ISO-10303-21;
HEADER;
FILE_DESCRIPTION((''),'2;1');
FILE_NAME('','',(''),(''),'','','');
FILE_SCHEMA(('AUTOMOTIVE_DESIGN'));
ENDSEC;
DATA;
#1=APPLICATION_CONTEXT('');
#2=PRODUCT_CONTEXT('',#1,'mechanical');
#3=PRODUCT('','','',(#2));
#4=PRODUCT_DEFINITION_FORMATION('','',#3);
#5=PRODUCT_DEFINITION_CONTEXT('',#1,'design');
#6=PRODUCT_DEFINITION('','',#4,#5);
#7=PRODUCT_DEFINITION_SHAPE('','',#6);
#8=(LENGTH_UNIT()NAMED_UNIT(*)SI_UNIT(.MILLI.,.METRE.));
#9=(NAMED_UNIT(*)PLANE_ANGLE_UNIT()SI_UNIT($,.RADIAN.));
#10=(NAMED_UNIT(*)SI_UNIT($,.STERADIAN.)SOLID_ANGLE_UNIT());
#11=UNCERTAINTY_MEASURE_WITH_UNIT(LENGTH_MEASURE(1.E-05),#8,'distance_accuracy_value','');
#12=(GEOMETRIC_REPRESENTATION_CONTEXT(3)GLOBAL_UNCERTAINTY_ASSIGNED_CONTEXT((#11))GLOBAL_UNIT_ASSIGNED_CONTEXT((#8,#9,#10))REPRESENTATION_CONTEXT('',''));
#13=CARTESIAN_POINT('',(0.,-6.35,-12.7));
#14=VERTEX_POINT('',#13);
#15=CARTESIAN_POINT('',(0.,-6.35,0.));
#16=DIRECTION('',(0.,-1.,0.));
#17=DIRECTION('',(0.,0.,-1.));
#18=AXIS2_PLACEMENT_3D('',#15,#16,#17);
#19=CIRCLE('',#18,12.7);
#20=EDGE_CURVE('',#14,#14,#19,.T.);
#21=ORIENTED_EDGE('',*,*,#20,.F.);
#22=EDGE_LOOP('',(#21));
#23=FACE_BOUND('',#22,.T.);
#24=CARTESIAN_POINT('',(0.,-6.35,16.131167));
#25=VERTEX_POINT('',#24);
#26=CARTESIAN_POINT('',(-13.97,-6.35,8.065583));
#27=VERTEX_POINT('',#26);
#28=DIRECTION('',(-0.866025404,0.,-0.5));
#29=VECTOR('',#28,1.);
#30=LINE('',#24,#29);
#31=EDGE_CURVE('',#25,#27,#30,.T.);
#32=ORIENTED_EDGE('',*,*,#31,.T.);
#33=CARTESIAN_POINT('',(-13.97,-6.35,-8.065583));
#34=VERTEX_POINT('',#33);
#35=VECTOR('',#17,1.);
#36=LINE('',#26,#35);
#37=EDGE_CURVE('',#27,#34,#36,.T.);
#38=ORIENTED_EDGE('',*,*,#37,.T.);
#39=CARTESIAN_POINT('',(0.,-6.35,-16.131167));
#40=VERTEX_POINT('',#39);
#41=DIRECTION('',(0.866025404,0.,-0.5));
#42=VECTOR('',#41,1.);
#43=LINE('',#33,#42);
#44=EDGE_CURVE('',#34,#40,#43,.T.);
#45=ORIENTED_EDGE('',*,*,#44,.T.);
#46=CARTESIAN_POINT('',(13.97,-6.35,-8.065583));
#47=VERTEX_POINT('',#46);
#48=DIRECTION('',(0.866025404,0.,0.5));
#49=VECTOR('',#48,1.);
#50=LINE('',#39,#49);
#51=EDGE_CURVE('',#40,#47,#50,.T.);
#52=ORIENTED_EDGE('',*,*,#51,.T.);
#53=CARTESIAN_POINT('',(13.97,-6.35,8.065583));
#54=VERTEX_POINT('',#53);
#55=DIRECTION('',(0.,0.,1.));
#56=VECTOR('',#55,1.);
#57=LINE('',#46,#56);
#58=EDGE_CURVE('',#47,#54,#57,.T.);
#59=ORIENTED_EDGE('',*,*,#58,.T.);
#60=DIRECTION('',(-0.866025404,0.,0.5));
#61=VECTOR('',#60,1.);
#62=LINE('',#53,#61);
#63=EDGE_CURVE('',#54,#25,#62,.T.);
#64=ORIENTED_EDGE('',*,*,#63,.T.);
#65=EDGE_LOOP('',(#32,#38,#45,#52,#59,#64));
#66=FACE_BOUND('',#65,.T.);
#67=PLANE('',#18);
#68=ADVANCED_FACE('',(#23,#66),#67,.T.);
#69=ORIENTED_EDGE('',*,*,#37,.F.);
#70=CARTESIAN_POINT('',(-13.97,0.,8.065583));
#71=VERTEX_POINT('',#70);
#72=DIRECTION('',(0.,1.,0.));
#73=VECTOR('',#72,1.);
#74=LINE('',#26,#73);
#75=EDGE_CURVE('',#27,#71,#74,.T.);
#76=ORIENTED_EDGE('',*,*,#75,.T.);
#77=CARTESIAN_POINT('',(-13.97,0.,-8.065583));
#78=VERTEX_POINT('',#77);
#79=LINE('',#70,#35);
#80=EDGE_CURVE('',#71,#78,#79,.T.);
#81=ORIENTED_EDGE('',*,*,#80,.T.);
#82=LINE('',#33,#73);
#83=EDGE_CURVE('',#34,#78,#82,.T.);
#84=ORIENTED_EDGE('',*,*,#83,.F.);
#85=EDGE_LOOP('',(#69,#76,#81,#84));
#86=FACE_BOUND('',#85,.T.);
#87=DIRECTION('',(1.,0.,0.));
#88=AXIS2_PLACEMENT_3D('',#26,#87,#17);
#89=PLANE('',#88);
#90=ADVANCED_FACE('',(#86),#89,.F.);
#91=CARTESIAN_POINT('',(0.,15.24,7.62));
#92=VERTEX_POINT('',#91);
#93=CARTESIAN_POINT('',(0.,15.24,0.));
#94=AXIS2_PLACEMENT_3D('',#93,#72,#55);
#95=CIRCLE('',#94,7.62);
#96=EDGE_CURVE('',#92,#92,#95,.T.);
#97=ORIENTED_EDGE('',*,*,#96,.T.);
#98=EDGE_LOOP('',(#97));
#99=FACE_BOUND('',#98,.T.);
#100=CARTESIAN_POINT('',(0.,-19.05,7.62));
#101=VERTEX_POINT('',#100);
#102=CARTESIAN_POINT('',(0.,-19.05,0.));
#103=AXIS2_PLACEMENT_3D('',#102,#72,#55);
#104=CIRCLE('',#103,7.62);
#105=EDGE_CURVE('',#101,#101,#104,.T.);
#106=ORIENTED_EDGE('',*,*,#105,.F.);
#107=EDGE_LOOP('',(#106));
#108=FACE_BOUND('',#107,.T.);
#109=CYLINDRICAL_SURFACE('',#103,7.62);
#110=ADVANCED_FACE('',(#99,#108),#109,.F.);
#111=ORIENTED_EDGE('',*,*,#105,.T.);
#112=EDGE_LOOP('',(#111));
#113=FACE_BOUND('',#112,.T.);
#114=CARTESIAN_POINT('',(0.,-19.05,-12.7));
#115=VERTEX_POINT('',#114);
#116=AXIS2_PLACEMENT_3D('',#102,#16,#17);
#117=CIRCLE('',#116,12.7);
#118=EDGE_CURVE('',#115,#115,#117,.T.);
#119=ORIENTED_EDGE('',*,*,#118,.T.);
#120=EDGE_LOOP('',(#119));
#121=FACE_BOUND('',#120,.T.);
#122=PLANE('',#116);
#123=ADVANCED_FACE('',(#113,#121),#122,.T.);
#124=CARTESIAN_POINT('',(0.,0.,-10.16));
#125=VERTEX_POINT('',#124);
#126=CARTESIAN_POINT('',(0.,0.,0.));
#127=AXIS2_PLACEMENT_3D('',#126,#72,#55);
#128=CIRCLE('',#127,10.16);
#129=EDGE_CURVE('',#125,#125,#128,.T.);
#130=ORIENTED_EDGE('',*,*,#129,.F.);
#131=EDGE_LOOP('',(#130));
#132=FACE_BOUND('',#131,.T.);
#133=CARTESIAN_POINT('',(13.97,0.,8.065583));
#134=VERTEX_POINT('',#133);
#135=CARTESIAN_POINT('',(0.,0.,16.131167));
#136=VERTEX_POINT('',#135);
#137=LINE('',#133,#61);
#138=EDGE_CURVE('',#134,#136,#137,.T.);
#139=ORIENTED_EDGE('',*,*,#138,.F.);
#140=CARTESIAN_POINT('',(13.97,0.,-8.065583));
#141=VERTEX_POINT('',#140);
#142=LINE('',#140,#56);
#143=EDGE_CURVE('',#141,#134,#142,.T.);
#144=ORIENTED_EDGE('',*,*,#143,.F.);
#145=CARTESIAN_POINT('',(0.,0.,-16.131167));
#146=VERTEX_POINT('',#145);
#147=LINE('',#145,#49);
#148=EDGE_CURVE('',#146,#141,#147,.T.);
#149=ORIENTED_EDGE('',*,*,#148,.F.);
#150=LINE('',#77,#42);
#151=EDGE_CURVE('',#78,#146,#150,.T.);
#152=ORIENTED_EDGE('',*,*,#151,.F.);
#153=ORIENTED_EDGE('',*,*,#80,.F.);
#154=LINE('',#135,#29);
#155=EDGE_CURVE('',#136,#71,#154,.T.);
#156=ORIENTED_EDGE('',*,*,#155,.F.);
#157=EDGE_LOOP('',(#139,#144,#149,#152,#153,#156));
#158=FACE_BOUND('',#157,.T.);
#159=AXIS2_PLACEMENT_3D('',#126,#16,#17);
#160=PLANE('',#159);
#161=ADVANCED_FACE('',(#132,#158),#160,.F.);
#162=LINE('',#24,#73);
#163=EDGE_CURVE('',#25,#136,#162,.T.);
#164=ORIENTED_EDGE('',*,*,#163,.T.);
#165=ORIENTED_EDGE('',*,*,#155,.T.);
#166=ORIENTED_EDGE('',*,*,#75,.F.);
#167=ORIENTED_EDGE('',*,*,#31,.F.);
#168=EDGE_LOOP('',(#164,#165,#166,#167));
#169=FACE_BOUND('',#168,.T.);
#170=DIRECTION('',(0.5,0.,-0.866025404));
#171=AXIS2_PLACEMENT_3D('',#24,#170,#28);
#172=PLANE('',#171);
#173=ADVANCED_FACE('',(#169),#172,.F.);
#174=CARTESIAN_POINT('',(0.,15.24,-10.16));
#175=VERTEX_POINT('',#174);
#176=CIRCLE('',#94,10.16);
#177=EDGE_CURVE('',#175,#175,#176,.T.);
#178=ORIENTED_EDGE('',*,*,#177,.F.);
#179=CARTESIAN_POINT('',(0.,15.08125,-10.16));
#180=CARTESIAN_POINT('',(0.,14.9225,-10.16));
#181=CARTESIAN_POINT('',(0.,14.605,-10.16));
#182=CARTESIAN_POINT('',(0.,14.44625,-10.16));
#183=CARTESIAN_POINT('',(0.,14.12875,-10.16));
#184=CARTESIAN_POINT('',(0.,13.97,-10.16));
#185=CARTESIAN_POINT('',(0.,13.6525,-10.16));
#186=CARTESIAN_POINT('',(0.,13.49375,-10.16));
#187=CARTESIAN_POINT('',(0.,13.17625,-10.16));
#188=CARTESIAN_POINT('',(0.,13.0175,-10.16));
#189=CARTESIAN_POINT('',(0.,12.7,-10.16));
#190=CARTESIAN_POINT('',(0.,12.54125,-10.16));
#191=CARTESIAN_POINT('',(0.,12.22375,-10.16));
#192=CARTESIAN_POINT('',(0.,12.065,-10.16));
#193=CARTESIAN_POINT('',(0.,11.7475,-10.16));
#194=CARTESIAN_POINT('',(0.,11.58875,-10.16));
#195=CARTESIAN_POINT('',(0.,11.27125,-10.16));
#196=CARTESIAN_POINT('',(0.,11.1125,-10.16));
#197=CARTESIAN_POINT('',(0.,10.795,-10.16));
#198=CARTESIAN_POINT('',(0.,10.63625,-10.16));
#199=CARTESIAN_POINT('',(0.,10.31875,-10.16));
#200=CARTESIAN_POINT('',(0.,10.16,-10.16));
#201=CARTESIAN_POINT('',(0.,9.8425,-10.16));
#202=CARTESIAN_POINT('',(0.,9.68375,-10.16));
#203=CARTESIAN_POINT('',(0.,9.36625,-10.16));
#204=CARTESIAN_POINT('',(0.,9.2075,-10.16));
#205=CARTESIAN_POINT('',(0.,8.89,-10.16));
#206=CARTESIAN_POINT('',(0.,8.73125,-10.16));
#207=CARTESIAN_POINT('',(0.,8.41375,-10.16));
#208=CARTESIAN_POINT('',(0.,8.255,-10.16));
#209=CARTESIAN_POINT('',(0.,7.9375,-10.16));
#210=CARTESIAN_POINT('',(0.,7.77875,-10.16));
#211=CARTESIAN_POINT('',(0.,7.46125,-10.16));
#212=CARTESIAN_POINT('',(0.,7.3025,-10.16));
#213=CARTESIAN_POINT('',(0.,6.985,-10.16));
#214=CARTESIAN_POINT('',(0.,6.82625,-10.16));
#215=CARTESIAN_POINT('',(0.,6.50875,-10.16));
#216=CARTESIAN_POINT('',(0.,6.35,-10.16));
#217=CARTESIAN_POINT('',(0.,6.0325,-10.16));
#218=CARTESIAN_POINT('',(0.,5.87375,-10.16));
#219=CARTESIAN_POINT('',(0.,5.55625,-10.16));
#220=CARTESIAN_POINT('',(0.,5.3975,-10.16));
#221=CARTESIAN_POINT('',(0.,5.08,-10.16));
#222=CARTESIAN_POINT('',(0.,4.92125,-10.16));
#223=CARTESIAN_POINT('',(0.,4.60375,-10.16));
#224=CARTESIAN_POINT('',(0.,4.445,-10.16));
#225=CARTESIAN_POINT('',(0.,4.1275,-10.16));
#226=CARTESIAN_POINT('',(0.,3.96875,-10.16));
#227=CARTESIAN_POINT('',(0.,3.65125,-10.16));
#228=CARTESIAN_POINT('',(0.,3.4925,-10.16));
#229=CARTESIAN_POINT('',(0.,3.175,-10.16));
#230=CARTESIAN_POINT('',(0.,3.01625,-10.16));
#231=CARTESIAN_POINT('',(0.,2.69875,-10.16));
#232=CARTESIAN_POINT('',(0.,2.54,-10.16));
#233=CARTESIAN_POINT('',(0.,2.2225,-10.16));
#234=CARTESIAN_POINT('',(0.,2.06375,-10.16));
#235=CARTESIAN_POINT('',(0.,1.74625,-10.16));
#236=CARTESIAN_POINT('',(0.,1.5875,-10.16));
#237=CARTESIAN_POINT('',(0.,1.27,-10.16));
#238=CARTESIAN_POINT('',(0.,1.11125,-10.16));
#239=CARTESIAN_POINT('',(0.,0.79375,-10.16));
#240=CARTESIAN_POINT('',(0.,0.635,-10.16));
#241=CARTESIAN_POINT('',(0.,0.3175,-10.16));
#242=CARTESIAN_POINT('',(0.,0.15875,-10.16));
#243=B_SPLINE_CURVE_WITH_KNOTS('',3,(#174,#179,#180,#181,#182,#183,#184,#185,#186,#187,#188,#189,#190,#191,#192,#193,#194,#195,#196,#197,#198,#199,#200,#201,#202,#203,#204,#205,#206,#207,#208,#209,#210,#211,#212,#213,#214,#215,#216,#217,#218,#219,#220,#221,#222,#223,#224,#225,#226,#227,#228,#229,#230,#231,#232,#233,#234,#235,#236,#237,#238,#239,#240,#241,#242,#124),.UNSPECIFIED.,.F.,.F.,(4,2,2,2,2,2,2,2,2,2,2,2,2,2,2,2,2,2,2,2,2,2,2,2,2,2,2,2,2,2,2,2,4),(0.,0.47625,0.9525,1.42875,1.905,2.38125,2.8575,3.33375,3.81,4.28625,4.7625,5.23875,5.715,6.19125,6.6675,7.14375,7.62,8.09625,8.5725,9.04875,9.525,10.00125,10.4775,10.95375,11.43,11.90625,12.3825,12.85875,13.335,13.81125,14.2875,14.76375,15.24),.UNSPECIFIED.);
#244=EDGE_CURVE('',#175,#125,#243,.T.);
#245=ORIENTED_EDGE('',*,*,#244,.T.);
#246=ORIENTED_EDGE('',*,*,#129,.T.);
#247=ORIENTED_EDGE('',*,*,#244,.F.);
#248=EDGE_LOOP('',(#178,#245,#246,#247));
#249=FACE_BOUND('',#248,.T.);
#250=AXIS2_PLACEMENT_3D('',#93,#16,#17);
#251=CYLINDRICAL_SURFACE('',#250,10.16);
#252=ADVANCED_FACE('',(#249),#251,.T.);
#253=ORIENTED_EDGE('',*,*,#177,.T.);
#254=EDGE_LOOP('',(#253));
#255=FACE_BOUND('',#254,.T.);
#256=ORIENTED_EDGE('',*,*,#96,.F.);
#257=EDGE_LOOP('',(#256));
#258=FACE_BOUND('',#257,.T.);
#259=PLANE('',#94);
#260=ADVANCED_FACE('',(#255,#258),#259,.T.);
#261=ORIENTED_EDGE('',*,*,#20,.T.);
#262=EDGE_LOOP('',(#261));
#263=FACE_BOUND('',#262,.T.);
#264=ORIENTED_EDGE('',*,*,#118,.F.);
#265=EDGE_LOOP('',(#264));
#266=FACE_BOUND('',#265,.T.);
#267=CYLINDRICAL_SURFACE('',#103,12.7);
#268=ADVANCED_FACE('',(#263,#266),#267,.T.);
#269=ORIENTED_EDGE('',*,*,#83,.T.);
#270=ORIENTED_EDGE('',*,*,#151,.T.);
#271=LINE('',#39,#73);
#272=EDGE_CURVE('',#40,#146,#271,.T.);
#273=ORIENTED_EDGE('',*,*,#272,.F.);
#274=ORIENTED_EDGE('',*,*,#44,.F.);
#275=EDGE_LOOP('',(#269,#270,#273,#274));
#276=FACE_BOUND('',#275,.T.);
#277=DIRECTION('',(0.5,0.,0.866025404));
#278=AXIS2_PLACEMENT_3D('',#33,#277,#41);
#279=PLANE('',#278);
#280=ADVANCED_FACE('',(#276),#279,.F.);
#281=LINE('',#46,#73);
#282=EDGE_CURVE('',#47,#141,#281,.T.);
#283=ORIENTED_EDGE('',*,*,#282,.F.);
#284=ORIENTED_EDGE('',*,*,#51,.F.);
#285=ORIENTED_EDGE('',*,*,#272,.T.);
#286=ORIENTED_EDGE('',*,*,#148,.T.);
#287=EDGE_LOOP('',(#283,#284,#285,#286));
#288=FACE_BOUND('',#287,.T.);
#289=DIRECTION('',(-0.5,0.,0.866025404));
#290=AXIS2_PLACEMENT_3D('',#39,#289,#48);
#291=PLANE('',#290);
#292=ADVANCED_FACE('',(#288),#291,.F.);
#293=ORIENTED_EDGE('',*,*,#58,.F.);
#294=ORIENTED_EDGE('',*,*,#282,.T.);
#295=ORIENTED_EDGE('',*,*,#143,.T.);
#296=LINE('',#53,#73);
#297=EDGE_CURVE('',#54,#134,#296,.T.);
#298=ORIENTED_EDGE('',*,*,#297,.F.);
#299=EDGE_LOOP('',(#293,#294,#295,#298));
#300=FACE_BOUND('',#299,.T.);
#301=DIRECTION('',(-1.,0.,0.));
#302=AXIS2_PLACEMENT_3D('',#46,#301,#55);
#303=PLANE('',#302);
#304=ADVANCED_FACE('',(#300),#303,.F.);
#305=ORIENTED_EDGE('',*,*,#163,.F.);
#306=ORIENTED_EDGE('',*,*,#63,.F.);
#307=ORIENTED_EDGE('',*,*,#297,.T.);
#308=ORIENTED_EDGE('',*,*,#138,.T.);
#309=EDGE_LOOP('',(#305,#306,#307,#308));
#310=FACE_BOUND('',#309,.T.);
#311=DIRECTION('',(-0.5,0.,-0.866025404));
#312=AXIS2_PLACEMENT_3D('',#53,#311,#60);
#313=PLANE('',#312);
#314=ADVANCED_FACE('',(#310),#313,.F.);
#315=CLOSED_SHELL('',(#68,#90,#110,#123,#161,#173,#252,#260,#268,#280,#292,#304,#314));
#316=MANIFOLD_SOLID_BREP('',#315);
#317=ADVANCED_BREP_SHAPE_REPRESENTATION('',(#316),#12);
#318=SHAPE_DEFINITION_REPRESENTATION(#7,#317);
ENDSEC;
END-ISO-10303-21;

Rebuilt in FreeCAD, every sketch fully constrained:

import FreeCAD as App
import Part
import Sketcher
from FreeCAD import Vector
Q = App.Units.Quantity


def add_polygon(sketch, points):
    """Adds a closed chain of lines whose ends are joined by coincident constraints."""
    first, n = sketch.GeometryCount, len(points)
    for a, b in zip(points, points[1:] + points[:1]):
        sketch.addGeometry(Part.LineSegment(App.Vector(*a, 0), App.Vector(*b, 0)), False)
    for i in range(n):
        sketch.addConstraint(Sketcher.Constraint("Coincident", first + i, 2, first + (i + 1) % n, 1))

doc = App.newDocument("Part")
params = doc.addObject("Spreadsheet::Sheet", "Params")
for row, (alias, value) in enumerate([
    ("sketch1_diameter", "0.8 in"),
    ("pad1_length", "0.6 in"),
    ("pad2_length", "0.25 in"),
    ("sketch3_diameter", "1 in"),
    ("pad3_length", "0.5 in"),
    ("sketch4_diameter", "0.6 in"),
], start=1):
    params.set(f"A{row}", alias)
    params.set(f"B{row}", "=" + value)
    params.setAlias(f"B{row}", alias)

body = doc.addObject("PartDesign::Body", "Body")

sketch1 = doc.addObject("Sketcher::SketchObject", "Sketch")
body.addObject(sketch1)
sketch1.AttachmentSupport = (doc.XZ_Plane, [""])
sketch1.MapMode = "FlatFace"
sketch1.addGeometry(Part.Circle(Vector(0, 0, 0), Vector(0, 0, 1), 10), False)
sketch1.addConstraint(Sketcher.Constraint("Coincident", 0, 3, -1, 1))
sketch1.addConstraint(Sketcher.Constraint("Diameter", 0, Q("0.8 in")))
sketch1.setExpression("Constraints[1]", "Params.sketch1_diameter")
pad1 = doc.addObject("PartDesign::Pad", "Pad")
body.addObject(pad1)
pad1.Profile = sketch1
pad1.setExpression("Length", "Params.pad1_length")
pad1.Reversed = True

sketch2 = doc.addObject("Sketcher::SketchObject", "Sketch001")
body.addObject(sketch2)
sketch2.AttachmentSupport = (doc.XZ_Plane, [""])
sketch2.MapMode = "FlatFace"
add_polygon(sketch2, [(-14, -8), (0, -16), (14, -8), (14, 8), (0, 16), (-14, 8)])
sketch2.addConstraint(Sketcher.Constraint("Vertical", 2))
sketch2.addConstraint(Sketcher.Constraint("Vertical", 5))
sketch2.addConstraint(Sketcher.Constraint("Symmetric", 0, 2, 3, 2, -1, 1))
sketch2.addConstraint(Sketcher.Constraint("Symmetric", 1, 2, 4, 2, -1, 1))
sketch2.addConstraint(Sketcher.Constraint("PointOnObject", 0, 2, -2))
sketch2.addConstraint(Sketcher.Constraint("Parallel", 0, 3))
sketch2.addConstraint(Sketcher.Constraint("Horizontal", 2, 2, 4, 2))
sketch2.addConstraint(Sketcher.Constraint("Angle", 0, Q("-30 deg")))
sketch2.addConstraint(Sketcher.Constraint("DistanceX", 4, 2, 2, 2, Q("1.1 in")))
sketch2.addConstraint(Sketcher.Constraint("DistanceY", 2, 1, 2, 2, 16.131167))
pad2 = doc.addObject("PartDesign::Pad", "Pad001")
body.addObject(pad2)
pad2.Profile = sketch2
pad2.setExpression("Length", "Params.pad2_length")

sketch3 = doc.addObject("Sketcher::SketchObject", "Sketch002")
body.addObject(sketch3)
sketch3.AttachmentSupport = (doc.XZ_Plane, [""])
sketch3.MapMode = "FlatFace"
sketch3.AttachmentOffset = App.Placement(Vector(0, 0, 0.25 * 25.4), App.Rotation())
sketch3.addGeometry(Part.Circle(Vector(0, 0, 0), Vector(0, 0, 1), 13), False)
sketch3.addConstraint(Sketcher.Constraint("Coincident", 0, 3, -1, 1))
sketch3.addConstraint(Sketcher.Constraint("Diameter", 0, Q("1 in")))
sketch3.setExpression("Constraints[1]", "Params.sketch3_diameter")
pad3 = doc.addObject("PartDesign::Pad", "Pad002")
body.addObject(pad3)
pad3.Profile = sketch3
pad3.setExpression("Length", "Params.pad3_length")

sketch4 = doc.addObject("Sketcher::SketchObject", "Sketch003")
body.addObject(sketch4)
sketch4.AttachmentSupport = (doc.XZ_Plane, [""])
sketch4.MapMode = "FlatFace"
sketch4.AttachmentOffset = App.Placement(Vector(0, 0, -0.6 * 25.4), App.Rotation())
sketch4.addGeometry(Part.Circle(Vector(0, 0, 0), Vector(0, 0, 1), 8), False)
sketch4.addConstraint(Sketcher.Constraint("Coincident", 0, 3, -1, 1))
sketch4.addConstraint(Sketcher.Constraint("Diameter", 0, Q("0.6 in")))
sketch4.setExpression("Constraints[1]", "Params.sketch4_diameter")
pocket1 = doc.addObject("PartDesign::Pocket", "Pocket")
body.addObject(pocket1)
pocket1.Profile = sketch4
pocket1.Type = "ThroughAll"
pocket1.Reversed = True

doc.recompute()
